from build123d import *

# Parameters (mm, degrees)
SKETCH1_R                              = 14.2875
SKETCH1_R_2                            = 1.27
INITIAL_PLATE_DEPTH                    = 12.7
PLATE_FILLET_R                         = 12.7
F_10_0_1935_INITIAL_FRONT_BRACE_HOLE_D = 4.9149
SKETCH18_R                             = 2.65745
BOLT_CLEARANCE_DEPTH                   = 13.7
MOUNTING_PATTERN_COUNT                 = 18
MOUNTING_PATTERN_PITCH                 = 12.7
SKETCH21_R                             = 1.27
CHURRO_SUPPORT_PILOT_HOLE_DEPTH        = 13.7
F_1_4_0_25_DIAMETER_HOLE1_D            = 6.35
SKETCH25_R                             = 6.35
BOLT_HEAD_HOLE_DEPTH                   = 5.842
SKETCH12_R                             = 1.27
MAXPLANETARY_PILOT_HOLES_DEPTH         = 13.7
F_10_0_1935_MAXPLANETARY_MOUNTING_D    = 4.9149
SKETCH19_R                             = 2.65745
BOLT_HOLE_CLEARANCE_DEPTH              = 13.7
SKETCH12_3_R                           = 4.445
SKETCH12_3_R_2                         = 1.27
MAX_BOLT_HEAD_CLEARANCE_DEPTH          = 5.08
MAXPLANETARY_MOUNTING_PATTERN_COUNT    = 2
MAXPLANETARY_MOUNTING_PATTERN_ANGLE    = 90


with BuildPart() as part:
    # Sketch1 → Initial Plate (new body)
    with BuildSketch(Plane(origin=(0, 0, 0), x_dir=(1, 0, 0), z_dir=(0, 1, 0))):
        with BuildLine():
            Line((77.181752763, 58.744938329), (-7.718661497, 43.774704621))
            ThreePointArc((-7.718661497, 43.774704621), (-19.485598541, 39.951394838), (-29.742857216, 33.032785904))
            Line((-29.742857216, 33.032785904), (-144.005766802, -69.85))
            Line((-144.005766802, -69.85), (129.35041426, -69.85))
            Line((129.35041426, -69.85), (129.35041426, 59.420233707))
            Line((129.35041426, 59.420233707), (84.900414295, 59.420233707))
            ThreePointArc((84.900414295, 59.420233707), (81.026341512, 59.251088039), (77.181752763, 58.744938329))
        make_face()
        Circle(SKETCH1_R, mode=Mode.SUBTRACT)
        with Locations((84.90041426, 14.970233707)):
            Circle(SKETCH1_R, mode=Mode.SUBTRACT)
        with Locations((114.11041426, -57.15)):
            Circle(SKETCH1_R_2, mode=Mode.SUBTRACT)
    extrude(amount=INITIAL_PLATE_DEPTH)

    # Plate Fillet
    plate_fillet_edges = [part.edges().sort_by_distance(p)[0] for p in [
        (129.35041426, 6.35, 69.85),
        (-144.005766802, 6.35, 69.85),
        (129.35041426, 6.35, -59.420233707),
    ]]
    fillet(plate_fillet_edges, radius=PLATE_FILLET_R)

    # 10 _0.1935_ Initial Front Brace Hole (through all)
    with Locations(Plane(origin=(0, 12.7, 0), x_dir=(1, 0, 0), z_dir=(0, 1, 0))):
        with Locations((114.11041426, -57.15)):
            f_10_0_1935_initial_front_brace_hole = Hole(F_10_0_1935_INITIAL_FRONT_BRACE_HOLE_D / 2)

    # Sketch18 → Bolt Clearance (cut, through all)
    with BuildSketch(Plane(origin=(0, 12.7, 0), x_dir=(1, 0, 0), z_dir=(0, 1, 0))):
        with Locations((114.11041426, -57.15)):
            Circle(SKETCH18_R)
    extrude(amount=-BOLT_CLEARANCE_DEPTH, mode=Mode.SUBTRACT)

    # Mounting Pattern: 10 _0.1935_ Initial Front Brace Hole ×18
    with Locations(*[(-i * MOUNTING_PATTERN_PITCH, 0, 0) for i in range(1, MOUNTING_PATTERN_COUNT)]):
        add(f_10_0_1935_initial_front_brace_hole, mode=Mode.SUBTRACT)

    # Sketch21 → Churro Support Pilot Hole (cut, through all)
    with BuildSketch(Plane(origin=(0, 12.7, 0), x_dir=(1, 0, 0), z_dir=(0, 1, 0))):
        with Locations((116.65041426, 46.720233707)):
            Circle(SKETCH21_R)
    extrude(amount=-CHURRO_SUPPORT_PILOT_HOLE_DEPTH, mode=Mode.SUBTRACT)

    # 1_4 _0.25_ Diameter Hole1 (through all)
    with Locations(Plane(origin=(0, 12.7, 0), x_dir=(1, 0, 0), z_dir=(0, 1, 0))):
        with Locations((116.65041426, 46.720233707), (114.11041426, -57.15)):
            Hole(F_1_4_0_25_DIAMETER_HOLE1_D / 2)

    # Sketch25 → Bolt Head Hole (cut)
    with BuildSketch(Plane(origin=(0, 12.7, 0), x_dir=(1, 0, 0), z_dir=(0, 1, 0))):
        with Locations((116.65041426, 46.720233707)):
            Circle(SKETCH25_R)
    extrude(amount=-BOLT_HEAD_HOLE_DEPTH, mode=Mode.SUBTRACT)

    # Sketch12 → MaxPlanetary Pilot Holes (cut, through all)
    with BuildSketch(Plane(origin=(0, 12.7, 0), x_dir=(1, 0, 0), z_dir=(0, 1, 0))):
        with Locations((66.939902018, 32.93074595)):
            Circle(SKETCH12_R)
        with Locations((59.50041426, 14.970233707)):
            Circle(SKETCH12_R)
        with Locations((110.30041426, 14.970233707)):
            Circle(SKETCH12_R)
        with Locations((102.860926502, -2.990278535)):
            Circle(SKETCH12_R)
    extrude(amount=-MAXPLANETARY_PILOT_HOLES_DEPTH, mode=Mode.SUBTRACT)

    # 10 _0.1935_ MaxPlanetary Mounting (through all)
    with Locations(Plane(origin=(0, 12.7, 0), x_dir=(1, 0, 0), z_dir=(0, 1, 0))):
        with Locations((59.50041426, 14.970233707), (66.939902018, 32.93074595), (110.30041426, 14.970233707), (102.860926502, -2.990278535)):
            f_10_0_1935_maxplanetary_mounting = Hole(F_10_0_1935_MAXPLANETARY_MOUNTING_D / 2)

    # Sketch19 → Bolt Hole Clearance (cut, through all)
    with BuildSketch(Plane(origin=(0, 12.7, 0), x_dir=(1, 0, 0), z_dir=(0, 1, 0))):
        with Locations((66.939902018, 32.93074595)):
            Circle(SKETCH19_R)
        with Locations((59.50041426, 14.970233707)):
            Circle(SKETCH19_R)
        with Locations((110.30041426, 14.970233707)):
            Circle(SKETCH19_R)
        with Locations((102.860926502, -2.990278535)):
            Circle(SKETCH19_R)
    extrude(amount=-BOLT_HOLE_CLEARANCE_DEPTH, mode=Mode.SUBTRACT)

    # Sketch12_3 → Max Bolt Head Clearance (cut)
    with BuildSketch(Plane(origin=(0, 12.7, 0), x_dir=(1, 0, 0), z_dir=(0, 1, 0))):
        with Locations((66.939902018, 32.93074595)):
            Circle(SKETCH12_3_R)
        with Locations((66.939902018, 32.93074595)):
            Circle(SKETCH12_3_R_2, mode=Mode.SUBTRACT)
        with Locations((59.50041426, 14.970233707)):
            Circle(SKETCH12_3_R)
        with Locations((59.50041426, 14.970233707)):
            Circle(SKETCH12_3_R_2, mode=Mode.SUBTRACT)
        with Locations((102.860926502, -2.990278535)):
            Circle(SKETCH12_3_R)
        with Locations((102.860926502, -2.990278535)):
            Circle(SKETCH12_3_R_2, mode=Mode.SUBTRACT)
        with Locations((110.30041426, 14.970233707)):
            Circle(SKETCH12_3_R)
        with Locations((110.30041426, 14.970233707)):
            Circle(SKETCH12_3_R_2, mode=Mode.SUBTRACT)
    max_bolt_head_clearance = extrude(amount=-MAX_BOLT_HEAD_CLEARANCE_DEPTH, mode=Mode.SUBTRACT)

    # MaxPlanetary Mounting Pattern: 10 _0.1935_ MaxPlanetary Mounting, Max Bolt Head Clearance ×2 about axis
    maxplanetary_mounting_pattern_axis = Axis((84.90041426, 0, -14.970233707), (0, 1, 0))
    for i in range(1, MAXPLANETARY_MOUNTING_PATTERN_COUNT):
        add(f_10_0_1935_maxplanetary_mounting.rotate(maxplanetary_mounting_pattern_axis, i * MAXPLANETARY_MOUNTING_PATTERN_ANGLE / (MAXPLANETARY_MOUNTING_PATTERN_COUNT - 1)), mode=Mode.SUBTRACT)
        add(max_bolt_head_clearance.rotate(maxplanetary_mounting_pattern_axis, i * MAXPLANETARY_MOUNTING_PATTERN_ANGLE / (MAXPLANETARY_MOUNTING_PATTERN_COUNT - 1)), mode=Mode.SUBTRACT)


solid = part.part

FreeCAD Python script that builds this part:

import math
import FreeCAD as App
import Part
import Sketcher
from FreeCAD import Vector
Q = App.Units.Quantity


def edges_at(feature, points):
    """Names of the edges that pass closest to the given points."""
    edges = feature.Shape.Edges
    near = lambda p: min(range(len(edges)), key=lambda i: edges[i].distToShape(Part.Vertex(*p))[0])
    return sorted({f"Edge{near(p) + 1}" for p in points})

doc = App.newDocument("Part")
body = doc.addObject("PartDesign::Body", "Body")

# Sketch on XZ plane
sketch1 = body.newObject("Sketcher::SketchObject", "Sketch")
sketch1.AttachmentSupport = (doc.getObject("XZ_Plane"), [""])
sketch1.MapMode = "FlatFace"
sketch1.addGeometry(Part.LineSegment(Vector(77.181753, -58.744938, 0), Vector(-7.718661, -43.774705, 0)), False)
sketch1.addGeometry(Part.ArcOfCircle(Part.Circle(Vector(0, 0, 0), Vector(0, 0, 1), 44.45), math.radians(-132.000003), math.radians(-100)), False)
sketch1.addGeometry(Part.LineSegment(Vector(-29.742857, -33.032786, 0), Vector(-144.005767, 69.85, 0)), False)
sketch1.addGeometry(Part.LineSegment(Vector(-144.005767, 69.85, 0), Vector(129.350414, 69.85, 0)), False)
sketch1.addGeometry(Part.LineSegment(Vector(129.350414, 69.85, 0), Vector(129.350414, -59.420234, 0)), False)
sketch1.addGeometry(Part.LineSegment(Vector(129.350414, -59.420234, 0), Vector(84.900414, -59.420234, 0)), False)
sketch1.addGeometry(Part.ArcOfCircle(Part.Circle(Vector(84.900414, -14.970234, 0), Vector(0, 0, 1), 44.45), math.radians(-100), math.radians(-90)), False)
sketch1.addGeometry(Part.Circle(Vector(114.110414, 57.15, 0), Vector(0, 0, 1), 1.27), False)
sketch1.addGeometry(Part.Circle(Vector(0, 0, 0), Vector(0, 0, 1), 14.2875), False)
sketch1.addGeometry(Part.Circle(Vector(84.900414, -14.970234, 0), Vector(0, 0, 1), 14.2875), False)
sketch1.addConstraint(Sketcher.Constraint("Tangent", 0, 2, 1, 2))
sketch1.addConstraint(Sketcher.Constraint("Tangent", 1, 1, 2, 1))
sketch1.addConstraint(Sketcher.Constraint("Coincident", 2, 2, 3, 1))
sketch1.addConstraint(Sketcher.Constraint("Coincident", 3, 2, 4, 1))
sketch1.addConstraint(Sketcher.Constraint("Coincident", 4, 2, 5, 1))
sketch1.addConstraint(Sketcher.Constraint("Tangent", 5, 2, 6, 2))
sketch1.addConstraint(Sketcher.Constraint("Tangent", 6, 1, 0, 1))
sketch1.addConstraint(Sketcher.Constraint("Horizontal", 3))
sketch1.addConstraint(Sketcher.Constraint("Vertical", 4))
sketch1.addConstraint(Sketcher.Constraint("Horizontal", 5))
sketch1.addConstraint(Sketcher.Constraint("Coincident", 1, 3, -1, 1))
sketch1.addConstraint(Sketcher.Constraint("Coincident", 8, 3, -1, 1))
sketch1.addConstraint(Sketcher.Constraint("Coincident", 9, 3, 6, 3))
sketch1.addConstraint(Sketcher.Constraint("Equal", 1, 6))
sketch1.addConstraint(Sketcher.Constraint("Equal", 8, 9))
sketch1.addConstraint(Sketcher.Constraint("Diameter", 7, Q("0.1 in")))
sketch1.addConstraint(Sketcher.Constraint("Radius", 1, Q("1.75 in")))
sketch1.addConstraint(Sketcher.Constraint("Diameter", 8, Q("1.125 in")))
sketch1.addConstraint(Sketcher.Constraint("Angle", 0, Q("170 deg")))
sketch1.addConstraint(Sketcher.Constraint("Angle", 2, Q("138 deg")))
sketch1.addConstraint(Sketcher.Constraint("DistanceX", 5, 2, 5, 1, Q("1.75 in")))
sketch1.addConstraint(Sketcher.Constraint("DistanceX", 7, 3, 3, 2, Q("0.6 in")))
sketch1.addConstraint(Sketcher.Constraint("DistanceY", 7, 3, 3, 2, Q("0.5 in")))
sketch1.addConstraint(Sketcher.Constraint("DistanceY", -1, 1, 7, 3, Q("2.25 in")))
sketch1.addConstraint(Sketcher.Constraint("Distance", 0, Q("3.3941 in")))
pad1 = body.newObject("PartDesign::Pad", "Pad")
pad1.Profile = sketch1
pad1.Length = Q("0.5 in")
pad1.Reversed = True
doc.recompute()

fillet = body.newObject("PartDesign::Fillet", "Fillet")
fillet.Base = (pad1, edges_at(pad1, [(129.35, 6.35, 69.85), (-144.006, 6.35, 69.85), (129.35, 6.35, -59.42)]))
fillet.Radius = Q("0.5 in")

# Sketch on XZ plane
sketch2 = body.newObject("Sketcher::SketchObject", "Sketch001")
sketch2.AttachmentSupport = (doc.getObject("XZ_Plane"), [""])
sketch2.MapMode = "FlatFace"
sketch2.AttachmentOffset = App.Placement(Vector(0, 0, -0.5 * 25.4), App.Rotation())
sketch2.addGeometry(Part.Circle(Vector(114.110414, 57.15, 0), Vector(0, 0, 1), 2.45745), False)
sketch2.addConstraint(Sketcher.Constraint("Diameter", 0, Q("0.1935 in")))
sketch2.addConstraint(Sketcher.Constraint("DistanceY", -1, 1, 0, 3, Q("2.25 in")))
sketch2.addConstraint(Sketcher.Constraint("DistanceX", -1, 1, 0, 3, Q("114.110414 mm")))
doc.recompute()
hole = body.newObject("PartDesign::Hole", "Hole")
hole.Profile = sketch2
hole.ThreadType = "None"
hole.Diameter = Q("0.1935 in")
hole.DepthType = "ThroughAll"
hole.Reversed = True

# Sketch on XZ plane
sketch3 = body.newObject("Sketcher::SketchObject", "Sketch002")
sketch3.AttachmentSupport = (doc.getObject("XZ_Plane"), [""])
sketch3.MapMode = "FlatFace"
sketch3.AttachmentOffset = App.Placement(Vector(0, 0, -0.5 * 25.4), App.Rotation())
sketch3.addGeometry(Part.Circle(Vector(114.110414, 57.15, 0), Vector(0, 0, 1), 2.65745), False)
sketch3.addConstraint(Sketcher.Constraint("Diameter", 0, Q("5.3149 mm")))
sketch3.addConstraint(Sketcher.Constraint("DistanceY", -1, 1, 0, 3, Q("2.25 in")))
sketch3.addConstraint(Sketcher.Constraint("DistanceX", -1, 1, 0, 3, Q("114.110414 mm")))
pocket1 = body.newObject("PartDesign::Pocket", "Pocket")
pocket1.Profile = sketch3
pocket1.Type = "ThroughAll"
pocket1.Reversed = True
doc.recompute()

linearpattern = body.newObject("PartDesign::LinearPattern", "LinearPattern")
linearpattern.Originals = [hole]
linearpattern.Direction = (doc.getObject("X_Axis"), [""])
linearpattern.Mode = "offset"
linearpattern.Offset = Q("0.5 in")
linearpattern.Occurrences = 18
linearpattern.Reversed = True
body.Tip = linearpattern

# Sketch on XZ plane
sketch4 = body.newObject("Sketcher::SketchObject", "Sketch003")
sketch4.AttachmentSupport = (doc.getObject("XZ_Plane"), [""])
sketch4.MapMode = "FlatFace"
sketch4.AttachmentOffset = App.Placement(Vector(0, 0, -0.5 * 25.4), App.Rotation())
sketch4.addGeometry(Part.Circle(Vector(116.650414, -46.720234, 0), Vector(0, 0, 1), 1.27), False)
sketch4.addConstraint(Sketcher.Constraint("Diameter", 0, Q("0.1 in")))
sketch4.addConstraint(Sketcher.Constraint("DistanceX", -1, 1, 0, 3, Q("116.650414 mm")))
sketch4.addConstraint(Sketcher.Constraint("DistanceY", 0, 3, -1, 1, Q("46.720234 mm")))
pocket2 = body.newObject("PartDesign::Pocket", "Pocket001")
pocket2.Profile = sketch4
pocket2.Type = "ThroughAll"
pocket2.Reversed = True

# Sketch on XZ plane
sketch5 = body.newObject("Sketcher::SketchObject", "Sketch004")
sketch5.AttachmentSupport = (doc.getObject("XZ_Plane"), [""])
sketch5.MapMode = "FlatFace"
sketch5.AttachmentOffset = App.Placement(Vector(0, 0, -0.5 * 25.4), App.Rotation())
sketch5.addGeometry(Part.Circle(Vector(116.650414, -46.720234, 0), Vector(0, 0, 1), 3.175), False)
sketch5.addGeometry(Part.Circle(Vector(114.110414, 57.15, 0), Vector(0, 0, 1), 3.175), False)
sketch5.addConstraint(Sketcher.Constraint("Equal", 0, 1))
sketch5.addConstraint(Sketcher.Constraint("Diameter", 0, Q("0.25 in")))
sketch5.addConstraint(Sketcher.Constraint("DistanceX", 1, 3, 0, 3, Q("0.1 in")))
sketch5.addConstraint(Sketcher.Constraint("DistanceY", -1, 1, 1, 3, Q("2.25 in")))
sketch5.addConstraint(Sketcher.Constraint("DistanceX", -1, 1, 0, 3, Q("116.650414 mm")))
sketch5.addConstraint(Sketcher.Constraint("DistanceY", 0, 3, -1, 1, Q("46.720234 mm")))
doc.recompute()
hole2 = body.newObject("PartDesign::Hole", "Hole001")
hole2.Profile = sketch5
hole2.ThreadType = "None"
hole2.Diameter = Q("0.25 in")
hole2.DepthType = "ThroughAll"
hole2.Reversed = True

# Sketch on XZ plane
sketch6 = body.newObject("Sketcher::SketchObject", "Sketch005")
sketch6.AttachmentSupport = (doc.getObject("XZ_Plane"), [""])
sketch6.MapMode = "FlatFace"
sketch6.AttachmentOffset = App.Placement(Vector(0, 0, -0.5 * 25.4), App.Rotation())
sketch6.addGeometry(Part.Circle(Vector(116.650414, -46.720234, 0), Vector(0, 0, 1), 6.35), False)
sketch6.addConstraint(Sketcher.Constraint("Diameter", 0, Q("0.5 in")))
sketch6.addConstraint(Sketcher.Constraint("DistanceX", -1, 1, 0, 3, Q("116.650414 mm")))
sketch6.addConstraint(Sketcher.Constraint("DistanceY", 0, 3, -1, 1, Q("46.720234 mm")))
pocket3 = body.newObject("PartDesign::Pocket", "Pocket002")
pocket3.Profile = sketch6
pocket3.Length = Q("0.23 in")
pocket3.Reversed = True

# Sketch on XZ plane
sketch7 = body.newObject("Sketcher::SketchObject", "Sketch006")
sketch7.AttachmentSupport = (doc.getObject("XZ_Plane"), [""])
sketch7.MapMode = "FlatFace"
sketch7.AttachmentOffset = App.Placement(Vector(0, 0, -0.5 * 25.4), App.Rotation())
sketch7.addGeometry(Part.Circle(Vector(66.939902, -32.930746, 0), Vector(0, 0, 1), 1.27), False)
sketch7.addGeometry(Part.Circle(Vector(59.500414, -14.970234, 0), Vector(0, 0, 1), 1.27), False)
sketch7.addGeometry(Part.Circle(Vector(110.300414, -14.970234, 0), Vector(0, 0, 1), 1.27), False)
sketch7.addGeometry(Part.Circle(Vector(102.860927, 2.990279, 0), Vector(0, 0, 1), 1.27), False)
sketch7.addConstraint(Sketcher.Constraint("Equal", 0, 1))
sketch7.addConstraint(Sketcher.Constraint("Equal", 1, 2))
sketch7.addConstraint(Sketcher.Constraint("Equal", 2, 3))
sketch7.addConstraint(Sketcher.Constraint("Horizontal", 1, 3, 2, 3))
sketch7.addConstraint(Sketcher.Constraint("Diameter", 0, Q("0.1 in")))
sketch7.addConstraint(Sketcher.Constraint("DistanceX", 1, 3, 2, 3, Q("2 in")))
sketch7.addConstraint(Sketcher.Constraint("DistanceY", -1, 1, 3, 3, Q("2.990279 mm")))
sketch7.addConstraint(Sketcher.Constraint("DistanceX", -1, 1, 0, 3, Q("66.939902 mm")))
sketch7.addConstraint(Sketcher.Constraint("DistanceY", 0, 3, -1, 1, Q("32.930746 mm")))
sketch7.addConstraint(Sketcher.Constraint("DistanceX", -1, 1, 1, 3, Q("59.500414 mm")))
sketch7.addConstraint(Sketcher.Constraint("DistanceY", 1, 3, -1, 1, Q("14.970234 mm")))
sketch7.addConstraint(Sketcher.Constraint("DistanceX", -1, 1, 3, 3, Q("102.860927 mm")))
pocket4 = body.newObject("PartDesign::Pocket", "Pocket003")
pocket4.Profile = sketch7
pocket4.Type = "ThroughAll"
pocket4.Reversed = True

# Sketch on XZ plane
sketch8 = body.newObject("Sketcher::SketchObject", "Sketch007")
sketch8.AttachmentSupport = (doc.getObject("XZ_Plane"), [""])
sketch8.MapMode = "FlatFace"
sketch8.AttachmentOffset = App.Placement(Vector(0, 0, -0.5 * 25.4), App.Rotation())
sketch8.addGeometry(Part.Circle(Vector(59.500414, -14.970234, 0), Vector(0, 0, 1), 2.45745), False)
sketch8.addGeometry(Part.Circle(Vector(66.939902, -32.930746, 0), Vector(0, 0, 1), 2.45745), False)
sketch8.addGeometry(Part.Circle(Vector(110.300414, -14.970234, 0), Vector(0, 0, 1), 2.45745), False)
sketch8.addGeometry(Part.Circle(Vector(102.860927, 2.990279, 0), Vector(0, 0, 1), 2.45745), False)
sketch8.addConstraint(Sketcher.Constraint("Equal", 0, 1))
sketch8.addConstraint(Sketcher.Constraint("Equal", 1, 2))
sketch8.addConstraint(Sketcher.Constraint("Equal", 2, 3))
sketch8.addConstraint(Sketcher.Constraint("Horizontal", 0, 3, 2, 3))
sketch8.addConstraint(Sketcher.Constraint("DistanceX", 0, 3, 2, 3, Q("2 in")))
sketch8.addConstraint(Sketcher.Constraint("Diameter", 0, Q("0.1935 in")))
sketch8.addConstraint(Sketcher.Constraint("DistanceY", -1, 1, 3, 3, Q("2.990279 mm")))
sketch8.addConstraint(Sketcher.Constraint("DistanceX", -1, 1, 0, 3, Q("59.500414 mm")))
sketch8.addConstraint(Sketcher.Constraint("DistanceY", 0, 3, -1, 1, Q("14.970234 mm")))
sketch8.addConstraint(Sketcher.Constraint("DistanceX", -1, 1, 1, 3, Q("66.939902 mm")))
sketch8.addConstraint(Sketcher.Constraint("DistanceY", 1, 3, -1, 1, Q("32.930746 mm")))
sketch8.addConstraint(Sketcher.Constraint("DistanceX", -1, 1, 3, 3, Q("102.860927 mm")))
doc.recompute()
hole3 = body.newObject("PartDesign::Hole", "Hole002")
hole3.Profile = sketch8
hole3.ThreadType = "None"
hole3.Diameter = Q("0.1935 in")
hole3.DepthType = "ThroughAll"
hole3.Reversed = True

# Sketch on XZ plane
sketch9 = body.newObject("Sketcher::SketchObject", "Sketch008")
sketch9.AttachmentSupport = (doc.getObject("XZ_Plane"), [""])
sketch9.MapMode = "FlatFace"
sketch9.AttachmentOffset = App.Placement(Vector(0, 0, -0.5 * 25.4), App.Rotation())
sketch9.addGeometry(Part.Circle(Vector(66.939902, -32.930746, 0), Vector(0, 0, 1), 2.65745), False)
sketch9.addGeometry(Part.Circle(Vector(59.500414, -14.970234, 0), Vector(0, 0, 1), 2.65745), False)
sketch9.addGeometry(Part.Circle(Vector(110.300414, -14.970234, 0), Vector(0, 0, 1), 2.65745), False)
sketch9.addGeometry(Part.Circle(Vector(102.860927, 2.990279, 0), Vector(0, 0, 1), 2.65745), False)
sketch9.addConstraint(Sketcher.Constraint("Equal", 0, 1))
sketch9.addConstraint(Sketcher.Constraint("Equal", 1, 2))
sketch9.addConstraint(Sketcher.Constraint("Equal", 2, 3))
sketch9.addConstraint(Sketcher.Constraint("Horizontal", 1, 3, 2, 3))
sketch9.addConstraint(Sketcher.Constraint("DistanceX", 1, 3, 2, 3, Q("2 in")))
sketch9.addConstraint(Sketcher.Constraint("Diameter", 0, Q("5.3149 mm")))
sketch9.addConstraint(Sketcher.Constraint("DistanceY", -1, 1, 3, 3, Q("2.990279 mm")))
sketch9.addConstraint(Sketcher.Constraint("DistanceX", -1, 1, 0, 3, Q("66.939902 mm")))
sketch9.addConstraint(Sketcher.Constraint("DistanceY", 0, 3, -1, 1, Q("32.930746 mm")))
sketch9.addConstraint(Sketcher.Constraint("DistanceX", -1, 1, 1, 3, Q("59.500414 mm")))
sketch9.addConstraint(Sketcher.Constraint("DistanceY", 1, 3, -1, 1, Q("14.970234 mm")))
sketch9.addConstraint(Sketcher.Constraint("DistanceX", -1, 1, 3, 3, Q("102.860927 mm")))
pocket5 = body.newObject("PartDesign::Pocket", "Pocket004")
pocket5.Profile = sketch9
pocket5.Type = "ThroughAll"
pocket5.Reversed = True

# Sketch on XZ plane
sketch10 = body.newObject("Sketcher::SketchObject", "Sketch009")
sketch10.AttachmentSupport = (doc.getObject("XZ_Plane"), [""])
sketch10.MapMode = "FlatFace"
sketch10.AttachmentOffset = App.Placement(Vector(0, 0, -0.5 * 25.4), App.Rotation())
sketch10.addGeometry(Part.Circle(Vector(66.939902, -32.930746, 0), Vector(0, 0, 1), 4.445), False)
sketch10.addGeometry(Part.Circle(Vector(66.939902, -32.930746, 0), Vector(0, 0, 1), 1.27), False)
sketch10.addGeometry(Part.Circle(Vector(59.500414, -14.970234, 0), Vector(0, 0, 1), 4.445), False)
sketch10.addGeometry(Part.Circle(Vector(59.500414, -14.970234, 0), Vector(0, 0, 1), 1.27), False)
sketch10.addGeometry(Part.Circle(Vector(102.860927, 2.990279, 0), Vector(0, 0, 1), 4.445), False)
sketch10.addGeometry(Part.Circle(Vector(102.860927, 2.990279, 0), Vector(0, 0, 1), 1.27), False)
sketch10.addGeometry(Part.Circle(Vector(110.300414, -14.970234, 0), Vector(0, 0, 1), 4.445), False)
sketch10.addGeometry(Part.Circle(Vector(110.300414, -14.970234, 0), Vector(0, 0, 1), 1.27), False)
sketch10.addConstraint(Sketcher.Constraint("Coincident", 1, 3, 0, 3))
sketch10.addConstraint(Sketcher.Constraint("Coincident", 3, 3, 2, 3))
sketch10.addConstraint(Sketcher.Constraint("Coincident", 5, 3, 4, 3))
sketch10.addConstraint(Sketcher.Constraint("Coincident", 7, 3, 6, 3))
sketch10.addConstraint(Sketcher.Constraint("Equal", 0, 2))
sketch10.addConstraint(Sketcher.Constraint("Equal", 1, 3))
sketch10.addConstraint(Sketcher.Constraint("Equal", 2, 4))
sketch10.addConstraint(Sketcher.Constraint("Equal", 3, 5))
sketch10.addConstraint(Sketcher.Constraint("Equal", 4, 6))
sketch10.addConstraint(Sketcher.Constraint("Equal", 5, 7))
sketch10.addConstraint(Sketcher.Constraint("Horizontal", 3, 3, 6, 3))
sketch10.addConstraint(Sketcher.Constraint("Diameter", 1, Q("0.1 in")))
sketch10.addConstraint(Sketcher.Constraint("Diameter", 0, Q("0.35 in")))
sketch10.addConstraint(Sketcher.Constraint("DistanceX", 2, 3, 6, 3, Q("2 in")))
sketch10.addConstraint(Sketcher.Constraint("DistanceY", -1, 1, 4, 3, Q("2.990279 mm")))
sketch10.addConstraint(Sketcher.Constraint("DistanceX", -1, 1, 0, 3, Q("66.939902 mm")))
sketch10.addConstraint(Sketcher.Constraint("DistanceY", 0, 3, -1, 1, Q("32.930746 mm")))
sketch10.addConstraint(Sketcher.Constraint("DistanceX", -1, 1, 2, 3, Q("59.500414 mm")))
sketch10.addConstraint(Sketcher.Constraint("DistanceY", 2, 3, -1, 1, Q("14.970234 mm")))
sketch10.addConstraint(Sketcher.Constraint("DistanceX", -1, 1, 4, 3, Q("102.860927 mm")))
pocket6 = body.newObject("PartDesign::Pocket", "Pocket005")
pocket6.Profile = sketch10
pocket6.Length = Q("0.2 in")
pocket6.Reversed = True
doc.recompute()

datumline = body.newObject("PartDesign::Line", "DatumLine")
datumline.Placement = App.Placement(Vector(84.900414, 0, -14.970234), App.Rotation(Vector(0, 0, 1), Vector(0, 1, 0)))
polarpattern = body.newObject("PartDesign::PolarPattern", "PolarPattern")
polarpattern.Originals = [hole3, pocket6]
polarpattern.Axis = (datumline, [""])
polarpattern.Angle = 90
polarpattern.Occurrences = 2
body.Tip = polarpattern

doc.recompute()
